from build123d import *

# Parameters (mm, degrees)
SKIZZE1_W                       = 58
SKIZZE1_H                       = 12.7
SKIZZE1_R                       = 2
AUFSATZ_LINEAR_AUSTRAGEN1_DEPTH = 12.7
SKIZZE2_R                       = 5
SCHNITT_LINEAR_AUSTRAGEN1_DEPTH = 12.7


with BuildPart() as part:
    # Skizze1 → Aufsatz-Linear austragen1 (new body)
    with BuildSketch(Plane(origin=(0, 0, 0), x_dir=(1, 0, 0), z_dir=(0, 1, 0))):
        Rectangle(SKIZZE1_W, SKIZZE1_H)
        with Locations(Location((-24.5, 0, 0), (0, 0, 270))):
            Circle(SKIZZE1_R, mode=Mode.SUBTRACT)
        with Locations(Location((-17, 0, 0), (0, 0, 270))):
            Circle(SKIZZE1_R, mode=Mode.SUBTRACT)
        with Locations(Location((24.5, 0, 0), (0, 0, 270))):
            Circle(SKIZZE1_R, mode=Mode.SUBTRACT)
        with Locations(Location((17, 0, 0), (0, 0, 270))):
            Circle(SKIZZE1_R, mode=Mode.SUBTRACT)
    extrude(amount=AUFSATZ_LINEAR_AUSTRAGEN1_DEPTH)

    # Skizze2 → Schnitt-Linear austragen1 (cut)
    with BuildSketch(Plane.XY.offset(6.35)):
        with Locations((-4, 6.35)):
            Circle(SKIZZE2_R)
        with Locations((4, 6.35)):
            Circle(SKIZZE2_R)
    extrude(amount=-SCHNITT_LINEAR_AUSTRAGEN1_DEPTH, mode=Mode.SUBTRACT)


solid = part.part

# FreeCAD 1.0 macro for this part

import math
import FreeCAD as App
import Part
import Sketcher

V = App.Vector


def add_polygon(sketch, points):
    """Adds a closed chain of lines whose ends are joined by coincident constraints."""
    first, n = sketch.GeometryCount, len(points)
    for a, b in zip(points, points[1:] + points[:1]):
        sketch.addGeometry(Part.LineSegment(App.Vector(*a, 0), App.Vector(*b, 0)), False)
    for i in range(n):
        sketch.addConstraint(Sketcher.Constraint("Coincident", first + i, 2, first + (i + 1) % n, 1))

doc = App.newDocument("Part")
params = doc.addObject("Spreadsheet::Sheet", "Params")
for row, (alias, value) in enumerate([
    ("sketch1_diameter", "4 mm"),
    ("sketch1_width", "58 mm"),
    ("sketch1_height", "12.7 mm"),
    ("pad1_length", "12.7 mm"),
    ("sketch2_radius", "5 mm"),
    ("pocket1_length", "12.7 mm"),
], start=1):
    params.set(f"A{row}", alias)
    params.set(f"B{row}", "=" + value)
    params.setAlias(f"B{row}", alias)

body = doc.addObject("PartDesign::Body", "Body")

# Sketch on XZ plane
sketch1 = body.newObject("Sketcher::SketchObject", "Sketch")
sketch1.AttachmentSupport = (doc.getObject("XZ_Plane"), [""])
sketch1.MapMode = "FlatFace"
add_polygon(sketch1, [(-29, -6.3), (-29, 6.3), (29, 6.3), (29, -6.3)])  # lines 0-3
sketch1.addGeometry(Part.Circle(V(-24.5, 0, 0), V(0, 0, 1), 2), False)  # 4
sketch1.addGeometry(Part.Circle(V(-17, 0, 0), V(0, 0, 1), 2), False)  # 5
sketch1.addGeometry(Part.Circle(V(17, 0, 0), V(0, 0, 1), 2), False)  # 6
sketch1.addGeometry(Part.Circle(V(24.5, 0, 0), V(0, 0, 1), 2), False)  # 7
sketch1.addConstraint([
    Sketcher.Constraint("Vertical", 0),
    Sketcher.Constraint("Horizontal", 1),
    Sketcher.Constraint("Vertical", 2),
    Sketcher.Constraint("Horizontal", 3),
    Sketcher.Constraint("Equal", 4, 5),
    Sketcher.Constraint("Equal", 5, 6),
    Sketcher.Constraint("Equal", 6, 7),
    Sketcher.Constraint("Symmetric", 5, 3, 6, 3, -1, 1),
    Sketcher.Constraint("Symmetric", 4, 3, 7, 3, -1, 1),
    Sketcher.Constraint("Symmetric", 0, 2, 2, 2, -1, 1),
    Sketcher.Constraint("PointOnObject", 4, 3, -1),
    Sketcher.Constraint("PointOnObject", 5, 3, -1),
    Sketcher.Constraint("Diameter", 4, 4.0),
    Sketcher.Constraint("DistanceX", 1, 1, 1, 2, 58.0),
    Sketcher.Constraint("DistanceY", 0, 1, 0, 2, 12.7),
    Sketcher.Constraint("DistanceX", 5, 3, -1, 1, 17.0),
    Sketcher.Constraint("DistanceX", 4, 3, 7, 3, 49.0),
])
sketch1.setExpression("Constraints[16]", "Params.sketch1_diameter")
sketch1.setExpression("Constraints[17]", "Params.sketch1_width")
sketch1.setExpression("Constraints[18]", "Params.sketch1_height")
pad1 = body.newObject("PartDesign::Pad", "Pad")
pad1.Profile = sketch1
pad1.setExpression("Length", "Params.pad1_length")
pad1.Reversed = True

# Sketch on XY plane
sketch2 = body.newObject("Sketcher::SketchObject", "Sketch001")
sketch2.AttachmentSupport = (doc.getObject("XY_Plane"), [""])
sketch2.MapMode = "FlatFace"
sketch2.AttachmentOffset = App.Placement(V(0, 0, 6.35), App.Rotation())
sketch2.addGeometry([
    Part.ArcOfCircle(Part.Circle(V(-4, 6, 0), V(0, 0, 1), 5), math.radians(37), math.radians(323)),
    Part.ArcOfCircle(Part.Circle(V(4, 6, 0), V(0, 0, 1), 5), math.radians(-143), math.radians(143)),
], False)
sketch2.addConstraint([
    Sketcher.Constraint("Coincident", 0, 1, 1, 2),
    Sketcher.Constraint("Coincident", 1, 1, 0, 2),
    Sketcher.Constraint("Equal", 0, 1),
    Sketcher.Constraint("Symmetric", 0, 3, 1, 3, -2),
    Sketcher.Constraint("Radius", 0, 5.0),
    Sketcher.Constraint("DistanceX", 0, 3, -1, 1, 4.0),
    Sketcher.Constraint("DistanceY", -1, 1, 0, 3, 6.35),
])
sketch2.setExpression("Constraints[4]", "Params.sketch2_radius")
pocket1 = body.newObject("PartDesign::Pocket", "Pocket")
pocket1.Profile = sketch2
pocket1.setExpression("Length", "Params.pocket1_length")

doc.recompute()
